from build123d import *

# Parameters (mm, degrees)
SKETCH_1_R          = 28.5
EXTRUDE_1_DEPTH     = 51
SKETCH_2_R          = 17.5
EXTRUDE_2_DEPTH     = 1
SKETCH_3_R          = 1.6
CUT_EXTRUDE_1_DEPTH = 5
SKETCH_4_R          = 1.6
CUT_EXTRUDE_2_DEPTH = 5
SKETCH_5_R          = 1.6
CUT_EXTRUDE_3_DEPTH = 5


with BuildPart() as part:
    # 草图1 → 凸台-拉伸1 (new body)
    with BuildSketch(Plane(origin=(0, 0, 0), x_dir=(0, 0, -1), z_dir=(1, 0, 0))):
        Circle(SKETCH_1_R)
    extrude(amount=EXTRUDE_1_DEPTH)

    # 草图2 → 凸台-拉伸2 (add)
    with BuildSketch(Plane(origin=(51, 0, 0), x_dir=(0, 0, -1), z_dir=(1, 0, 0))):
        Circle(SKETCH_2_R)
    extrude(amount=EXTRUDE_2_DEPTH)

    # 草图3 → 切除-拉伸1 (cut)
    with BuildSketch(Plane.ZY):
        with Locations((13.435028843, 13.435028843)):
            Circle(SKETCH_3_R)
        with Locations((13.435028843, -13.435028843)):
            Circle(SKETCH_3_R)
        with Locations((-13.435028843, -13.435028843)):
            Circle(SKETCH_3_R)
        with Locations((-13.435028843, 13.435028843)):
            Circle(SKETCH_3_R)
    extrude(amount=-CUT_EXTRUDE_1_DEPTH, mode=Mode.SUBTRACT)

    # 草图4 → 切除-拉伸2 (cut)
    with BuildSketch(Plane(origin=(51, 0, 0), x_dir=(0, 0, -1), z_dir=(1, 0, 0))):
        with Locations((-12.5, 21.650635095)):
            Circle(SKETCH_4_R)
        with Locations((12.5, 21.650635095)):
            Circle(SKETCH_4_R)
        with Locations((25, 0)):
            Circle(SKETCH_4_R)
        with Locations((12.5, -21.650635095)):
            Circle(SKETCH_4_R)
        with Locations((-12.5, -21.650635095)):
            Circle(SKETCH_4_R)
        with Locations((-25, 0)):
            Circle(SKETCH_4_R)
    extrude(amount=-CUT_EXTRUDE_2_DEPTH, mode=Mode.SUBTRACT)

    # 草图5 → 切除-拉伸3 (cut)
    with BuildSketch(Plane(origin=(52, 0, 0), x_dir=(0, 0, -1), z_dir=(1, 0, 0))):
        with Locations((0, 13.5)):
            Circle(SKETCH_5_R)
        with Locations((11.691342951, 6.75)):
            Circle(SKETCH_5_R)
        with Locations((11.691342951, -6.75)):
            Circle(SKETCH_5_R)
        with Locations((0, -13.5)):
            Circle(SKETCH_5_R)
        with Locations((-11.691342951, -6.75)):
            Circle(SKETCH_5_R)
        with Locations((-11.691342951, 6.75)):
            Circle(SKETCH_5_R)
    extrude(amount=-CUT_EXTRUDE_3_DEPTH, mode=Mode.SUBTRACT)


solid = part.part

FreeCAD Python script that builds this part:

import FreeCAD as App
import Part
import Sketcher
from FreeCAD import Vector
Q = App.Units.Quantity

doc = App.newDocument("Part")
body = doc.addObject("PartDesign::Body", "Body")

# Sketch on YZ plane
sketch1 = body.newObject("Sketcher::SketchObject", "Sketch")
sketch1.AttachmentSupport = (doc.getObject("YZ_Plane"), [""])
sketch1.MapMode = "FlatFace"
sketch1.addGeometry(Part.Circle(Vector(0, 0, 0), Vector(0, 0, 1), 28), False)
sketch1.addConstraint([
    Sketcher.Constraint("Coincident", 0, 3, -1, 1),
    Sketcher.Constraint("Diameter", 0, Q("57 mm")),
])
pad1 = body.newObject("PartDesign::Pad", "Pad")
pad1.Profile = sketch1
pad1.Length = 51

# Sketch on YZ plane
sketch2 = body.newObject("Sketcher::SketchObject", "Sketch001")
sketch2.AttachmentSupport = (doc.getObject("YZ_Plane"), [""])
sketch2.MapMode = "FlatFace"
sketch2.AttachmentOffset = App.Placement(Vector(0, 0, 51), App.Rotation())
sketch2.addGeometry(Part.Circle(Vector(0, 0, 0), Vector(0, 0, 1), 18), False)
sketch2.addConstraint([
    Sketcher.Constraint("Coincident", 0, 3, -1, 1),
    Sketcher.Constraint("Diameter", 0, Q("35 mm")),
])
pad2 = body.newObject("PartDesign::Pad", "Pad001")
pad2.Profile = sketch2
pad2.Length = 1

# Sketch on YZ plane
sketch3 = body.newObject("Sketcher::SketchObject", "Sketch002")
sketch3.AttachmentSupport = (doc.getObject("YZ_Plane"), [""])
sketch3.MapMode = "FlatFace"
sketch3.addGeometry([
    Part.Circle(Vector(13.4, 13.4, 0), Vector(0, 0, 1), 1.6),
    Part.Circle(Vector(-13.4, 13.4, 0), Vector(0, 0, 1), 1.6),
    Part.Circle(Vector(-13.4, -13.4, 0), Vector(0, 0, 1), 1.6),
    Part.Circle(Vector(13.4, -13.4, 0), Vector(0, 0, 1), 1.6),
], False)
sketch3.addConstraint([
    Sketcher.Constraint("Equal", 0, 1),
    Sketcher.Constraint("Equal", 1, 2),
    Sketcher.Constraint("Equal", 2, 3),
    Sketcher.Constraint("Symmetric", 0, 3, 2, 3, -1, 1),
    Sketcher.Constraint("Symmetric", 1, 3, 3, 3, -1, 1),
    Sketcher.Constraint("Symmetric", 0, 3, 1, 3, -2),
    Sketcher.Constraint("Diameter", 0, Q("3.2 mm")),
    Sketcher.Constraint("DistanceX", -1, 1, 0, 3, Q("13.435029 mm")),
    Sketcher.Constraint("DistanceY", -1, 1, 0, 3, Q("13.435029 mm")),
])
pocket1 = body.newObject("PartDesign::Pocket", "Pocket")
pocket1.Profile = sketch3
pocket1.Length = 5
pocket1.Reversed = True

# Sketch on YZ plane
sketch4 = body.newObject("Sketcher::SketchObject", "Sketch003")
sketch4.AttachmentSupport = (doc.getObject("YZ_Plane"), [""])
sketch4.MapMode = "FlatFace"
sketch4.AttachmentOffset = App.Placement(Vector(0, 0, 51), App.Rotation())
sketch4.addGeometry([
    Part.Circle(Vector(21.7, 12.5, 0), Vector(0, 0, 1), 1.6),  # 0
    Part.Circle(Vector(21.7, -12.5, 0), Vector(0, 0, 1), 1.6),  # 1
    Part.Circle(Vector(0, -25, 0), Vector(0, 0, 1), 1.6),  # 2
    Part.Circle(Vector(-21.7, -12.5, 0), Vector(0, 0, 1), 1.6),  # 3
    Part.Circle(Vector(-21.7, 12.5, 0), Vector(0, 0, 1), 1.6),  # 4
    Part.Circle(Vector(0, 25, 0), Vector(0, 0, 1), 1.6),  # 5
], False)
sketch4.addConstraint([
    Sketcher.Constraint("Equal", 0, 1),
    Sketcher.Constraint("Equal", 1, 2),
    Sketcher.Constraint("Equal", 2, 3),
    Sketcher.Constraint("Equal", 3, 4),
    Sketcher.Constraint("Equal", 4, 5),
    Sketcher.Constraint("Symmetric", 0, 3, 3, 3, -1, 1),
    Sketcher.Constraint("Symmetric", 1, 3, 4, 3, -1, 1),
    Sketcher.Constraint("Symmetric", 2, 3, 5, 3, -1, 1),
    Sketcher.Constraint("Symmetric", 1, 3, 3, 3, -2),
    Sketcher.Constraint("PointOnObject", 2, 3, -2),
    Sketcher.Constraint("Diameter", 0, Q("3.2 mm")),
    Sketcher.Constraint("DistanceY", 2, 3, -1, 1, Q("25 mm")),
    Sketcher.Constraint("DistanceY", 1, 3, 0, 3, Q("25 mm")),
    Sketcher.Constraint("DistanceX", 3, 3, 1, 3, Q("43.30127 mm")),
])
pocket2 = body.newObject("PartDesign::Pocket", "Pocket001")
pocket2.Profile = sketch4
pocket2.Length = 5

# Sketch on YZ plane
sketch5 = body.newObject("Sketcher::SketchObject", "Sketch004")
sketch5.AttachmentSupport = (doc.getObject("YZ_Plane"), [""])
sketch5.MapMode = "FlatFace"
sketch5.AttachmentOffset = App.Placement(Vector(0, 0, 52), App.Rotation())
sketch5.addGeometry([
    Part.Circle(Vector(13.5, 0, 0), Vector(0, 0, 1), 1.6),  # 0
    Part.Circle(Vector(6.8, -11.7, 0), Vector(0, 0, 1), 1.6),  # 1
    Part.Circle(Vector(-6.8, -11.7, 0), Vector(0, 0, 1), 1.6),  # 2
    Part.Circle(Vector(-13.5, 0, 0), Vector(0, 0, 1), 1.6),  # 3
    Part.Circle(Vector(-6.8, 11.7, 0), Vector(0, 0, 1), 1.6),  # 4
    Part.Circle(Vector(6.8, 11.7, 0), Vector(0, 0, 1), 1.6),  # 5
], False)
sketch5.addConstraint([
    Sketcher.Constraint("Equal", 0, 1),
    Sketcher.Constraint("Equal", 1, 2),
    Sketcher.Constraint("Equal", 2, 3),
    Sketcher.Constraint("Equal", 3, 4),
    Sketcher.Constraint("Equal", 4, 5),
    Sketcher.Constraint("Symmetric", 0, 3, 3, 3, -1, 1),
    Sketcher.Constraint("Symmetric", 1, 3, 4, 3, -1, 1),
    Sketcher.Constraint("Symmetric", 2, 3, 5, 3, -1, 1),
    Sketcher.Constraint("Symmetric", 1, 3, 2, 3, -2),
    Sketcher.Constraint("PointOnObject", 0, 3, -1),
    Sketcher.Constraint("Diameter", 0, Q("3.2 mm")),
    Sketcher.Constraint("DistanceX", 3, 3, 0, 3, Q("27 mm")),
    Sketcher.Constraint("DistanceX", 2, 3, 1, 3, Q("13.5 mm")),
    Sketcher.Constraint("DistanceY", 1, 3, -1, 1, Q("11.691343 mm")),
])
pocket3 = body.newObject("PartDesign::Pocket", "Pocket002")
pocket3.Profile = sketch5
pocket3.Length = 5

doc.recompute()
